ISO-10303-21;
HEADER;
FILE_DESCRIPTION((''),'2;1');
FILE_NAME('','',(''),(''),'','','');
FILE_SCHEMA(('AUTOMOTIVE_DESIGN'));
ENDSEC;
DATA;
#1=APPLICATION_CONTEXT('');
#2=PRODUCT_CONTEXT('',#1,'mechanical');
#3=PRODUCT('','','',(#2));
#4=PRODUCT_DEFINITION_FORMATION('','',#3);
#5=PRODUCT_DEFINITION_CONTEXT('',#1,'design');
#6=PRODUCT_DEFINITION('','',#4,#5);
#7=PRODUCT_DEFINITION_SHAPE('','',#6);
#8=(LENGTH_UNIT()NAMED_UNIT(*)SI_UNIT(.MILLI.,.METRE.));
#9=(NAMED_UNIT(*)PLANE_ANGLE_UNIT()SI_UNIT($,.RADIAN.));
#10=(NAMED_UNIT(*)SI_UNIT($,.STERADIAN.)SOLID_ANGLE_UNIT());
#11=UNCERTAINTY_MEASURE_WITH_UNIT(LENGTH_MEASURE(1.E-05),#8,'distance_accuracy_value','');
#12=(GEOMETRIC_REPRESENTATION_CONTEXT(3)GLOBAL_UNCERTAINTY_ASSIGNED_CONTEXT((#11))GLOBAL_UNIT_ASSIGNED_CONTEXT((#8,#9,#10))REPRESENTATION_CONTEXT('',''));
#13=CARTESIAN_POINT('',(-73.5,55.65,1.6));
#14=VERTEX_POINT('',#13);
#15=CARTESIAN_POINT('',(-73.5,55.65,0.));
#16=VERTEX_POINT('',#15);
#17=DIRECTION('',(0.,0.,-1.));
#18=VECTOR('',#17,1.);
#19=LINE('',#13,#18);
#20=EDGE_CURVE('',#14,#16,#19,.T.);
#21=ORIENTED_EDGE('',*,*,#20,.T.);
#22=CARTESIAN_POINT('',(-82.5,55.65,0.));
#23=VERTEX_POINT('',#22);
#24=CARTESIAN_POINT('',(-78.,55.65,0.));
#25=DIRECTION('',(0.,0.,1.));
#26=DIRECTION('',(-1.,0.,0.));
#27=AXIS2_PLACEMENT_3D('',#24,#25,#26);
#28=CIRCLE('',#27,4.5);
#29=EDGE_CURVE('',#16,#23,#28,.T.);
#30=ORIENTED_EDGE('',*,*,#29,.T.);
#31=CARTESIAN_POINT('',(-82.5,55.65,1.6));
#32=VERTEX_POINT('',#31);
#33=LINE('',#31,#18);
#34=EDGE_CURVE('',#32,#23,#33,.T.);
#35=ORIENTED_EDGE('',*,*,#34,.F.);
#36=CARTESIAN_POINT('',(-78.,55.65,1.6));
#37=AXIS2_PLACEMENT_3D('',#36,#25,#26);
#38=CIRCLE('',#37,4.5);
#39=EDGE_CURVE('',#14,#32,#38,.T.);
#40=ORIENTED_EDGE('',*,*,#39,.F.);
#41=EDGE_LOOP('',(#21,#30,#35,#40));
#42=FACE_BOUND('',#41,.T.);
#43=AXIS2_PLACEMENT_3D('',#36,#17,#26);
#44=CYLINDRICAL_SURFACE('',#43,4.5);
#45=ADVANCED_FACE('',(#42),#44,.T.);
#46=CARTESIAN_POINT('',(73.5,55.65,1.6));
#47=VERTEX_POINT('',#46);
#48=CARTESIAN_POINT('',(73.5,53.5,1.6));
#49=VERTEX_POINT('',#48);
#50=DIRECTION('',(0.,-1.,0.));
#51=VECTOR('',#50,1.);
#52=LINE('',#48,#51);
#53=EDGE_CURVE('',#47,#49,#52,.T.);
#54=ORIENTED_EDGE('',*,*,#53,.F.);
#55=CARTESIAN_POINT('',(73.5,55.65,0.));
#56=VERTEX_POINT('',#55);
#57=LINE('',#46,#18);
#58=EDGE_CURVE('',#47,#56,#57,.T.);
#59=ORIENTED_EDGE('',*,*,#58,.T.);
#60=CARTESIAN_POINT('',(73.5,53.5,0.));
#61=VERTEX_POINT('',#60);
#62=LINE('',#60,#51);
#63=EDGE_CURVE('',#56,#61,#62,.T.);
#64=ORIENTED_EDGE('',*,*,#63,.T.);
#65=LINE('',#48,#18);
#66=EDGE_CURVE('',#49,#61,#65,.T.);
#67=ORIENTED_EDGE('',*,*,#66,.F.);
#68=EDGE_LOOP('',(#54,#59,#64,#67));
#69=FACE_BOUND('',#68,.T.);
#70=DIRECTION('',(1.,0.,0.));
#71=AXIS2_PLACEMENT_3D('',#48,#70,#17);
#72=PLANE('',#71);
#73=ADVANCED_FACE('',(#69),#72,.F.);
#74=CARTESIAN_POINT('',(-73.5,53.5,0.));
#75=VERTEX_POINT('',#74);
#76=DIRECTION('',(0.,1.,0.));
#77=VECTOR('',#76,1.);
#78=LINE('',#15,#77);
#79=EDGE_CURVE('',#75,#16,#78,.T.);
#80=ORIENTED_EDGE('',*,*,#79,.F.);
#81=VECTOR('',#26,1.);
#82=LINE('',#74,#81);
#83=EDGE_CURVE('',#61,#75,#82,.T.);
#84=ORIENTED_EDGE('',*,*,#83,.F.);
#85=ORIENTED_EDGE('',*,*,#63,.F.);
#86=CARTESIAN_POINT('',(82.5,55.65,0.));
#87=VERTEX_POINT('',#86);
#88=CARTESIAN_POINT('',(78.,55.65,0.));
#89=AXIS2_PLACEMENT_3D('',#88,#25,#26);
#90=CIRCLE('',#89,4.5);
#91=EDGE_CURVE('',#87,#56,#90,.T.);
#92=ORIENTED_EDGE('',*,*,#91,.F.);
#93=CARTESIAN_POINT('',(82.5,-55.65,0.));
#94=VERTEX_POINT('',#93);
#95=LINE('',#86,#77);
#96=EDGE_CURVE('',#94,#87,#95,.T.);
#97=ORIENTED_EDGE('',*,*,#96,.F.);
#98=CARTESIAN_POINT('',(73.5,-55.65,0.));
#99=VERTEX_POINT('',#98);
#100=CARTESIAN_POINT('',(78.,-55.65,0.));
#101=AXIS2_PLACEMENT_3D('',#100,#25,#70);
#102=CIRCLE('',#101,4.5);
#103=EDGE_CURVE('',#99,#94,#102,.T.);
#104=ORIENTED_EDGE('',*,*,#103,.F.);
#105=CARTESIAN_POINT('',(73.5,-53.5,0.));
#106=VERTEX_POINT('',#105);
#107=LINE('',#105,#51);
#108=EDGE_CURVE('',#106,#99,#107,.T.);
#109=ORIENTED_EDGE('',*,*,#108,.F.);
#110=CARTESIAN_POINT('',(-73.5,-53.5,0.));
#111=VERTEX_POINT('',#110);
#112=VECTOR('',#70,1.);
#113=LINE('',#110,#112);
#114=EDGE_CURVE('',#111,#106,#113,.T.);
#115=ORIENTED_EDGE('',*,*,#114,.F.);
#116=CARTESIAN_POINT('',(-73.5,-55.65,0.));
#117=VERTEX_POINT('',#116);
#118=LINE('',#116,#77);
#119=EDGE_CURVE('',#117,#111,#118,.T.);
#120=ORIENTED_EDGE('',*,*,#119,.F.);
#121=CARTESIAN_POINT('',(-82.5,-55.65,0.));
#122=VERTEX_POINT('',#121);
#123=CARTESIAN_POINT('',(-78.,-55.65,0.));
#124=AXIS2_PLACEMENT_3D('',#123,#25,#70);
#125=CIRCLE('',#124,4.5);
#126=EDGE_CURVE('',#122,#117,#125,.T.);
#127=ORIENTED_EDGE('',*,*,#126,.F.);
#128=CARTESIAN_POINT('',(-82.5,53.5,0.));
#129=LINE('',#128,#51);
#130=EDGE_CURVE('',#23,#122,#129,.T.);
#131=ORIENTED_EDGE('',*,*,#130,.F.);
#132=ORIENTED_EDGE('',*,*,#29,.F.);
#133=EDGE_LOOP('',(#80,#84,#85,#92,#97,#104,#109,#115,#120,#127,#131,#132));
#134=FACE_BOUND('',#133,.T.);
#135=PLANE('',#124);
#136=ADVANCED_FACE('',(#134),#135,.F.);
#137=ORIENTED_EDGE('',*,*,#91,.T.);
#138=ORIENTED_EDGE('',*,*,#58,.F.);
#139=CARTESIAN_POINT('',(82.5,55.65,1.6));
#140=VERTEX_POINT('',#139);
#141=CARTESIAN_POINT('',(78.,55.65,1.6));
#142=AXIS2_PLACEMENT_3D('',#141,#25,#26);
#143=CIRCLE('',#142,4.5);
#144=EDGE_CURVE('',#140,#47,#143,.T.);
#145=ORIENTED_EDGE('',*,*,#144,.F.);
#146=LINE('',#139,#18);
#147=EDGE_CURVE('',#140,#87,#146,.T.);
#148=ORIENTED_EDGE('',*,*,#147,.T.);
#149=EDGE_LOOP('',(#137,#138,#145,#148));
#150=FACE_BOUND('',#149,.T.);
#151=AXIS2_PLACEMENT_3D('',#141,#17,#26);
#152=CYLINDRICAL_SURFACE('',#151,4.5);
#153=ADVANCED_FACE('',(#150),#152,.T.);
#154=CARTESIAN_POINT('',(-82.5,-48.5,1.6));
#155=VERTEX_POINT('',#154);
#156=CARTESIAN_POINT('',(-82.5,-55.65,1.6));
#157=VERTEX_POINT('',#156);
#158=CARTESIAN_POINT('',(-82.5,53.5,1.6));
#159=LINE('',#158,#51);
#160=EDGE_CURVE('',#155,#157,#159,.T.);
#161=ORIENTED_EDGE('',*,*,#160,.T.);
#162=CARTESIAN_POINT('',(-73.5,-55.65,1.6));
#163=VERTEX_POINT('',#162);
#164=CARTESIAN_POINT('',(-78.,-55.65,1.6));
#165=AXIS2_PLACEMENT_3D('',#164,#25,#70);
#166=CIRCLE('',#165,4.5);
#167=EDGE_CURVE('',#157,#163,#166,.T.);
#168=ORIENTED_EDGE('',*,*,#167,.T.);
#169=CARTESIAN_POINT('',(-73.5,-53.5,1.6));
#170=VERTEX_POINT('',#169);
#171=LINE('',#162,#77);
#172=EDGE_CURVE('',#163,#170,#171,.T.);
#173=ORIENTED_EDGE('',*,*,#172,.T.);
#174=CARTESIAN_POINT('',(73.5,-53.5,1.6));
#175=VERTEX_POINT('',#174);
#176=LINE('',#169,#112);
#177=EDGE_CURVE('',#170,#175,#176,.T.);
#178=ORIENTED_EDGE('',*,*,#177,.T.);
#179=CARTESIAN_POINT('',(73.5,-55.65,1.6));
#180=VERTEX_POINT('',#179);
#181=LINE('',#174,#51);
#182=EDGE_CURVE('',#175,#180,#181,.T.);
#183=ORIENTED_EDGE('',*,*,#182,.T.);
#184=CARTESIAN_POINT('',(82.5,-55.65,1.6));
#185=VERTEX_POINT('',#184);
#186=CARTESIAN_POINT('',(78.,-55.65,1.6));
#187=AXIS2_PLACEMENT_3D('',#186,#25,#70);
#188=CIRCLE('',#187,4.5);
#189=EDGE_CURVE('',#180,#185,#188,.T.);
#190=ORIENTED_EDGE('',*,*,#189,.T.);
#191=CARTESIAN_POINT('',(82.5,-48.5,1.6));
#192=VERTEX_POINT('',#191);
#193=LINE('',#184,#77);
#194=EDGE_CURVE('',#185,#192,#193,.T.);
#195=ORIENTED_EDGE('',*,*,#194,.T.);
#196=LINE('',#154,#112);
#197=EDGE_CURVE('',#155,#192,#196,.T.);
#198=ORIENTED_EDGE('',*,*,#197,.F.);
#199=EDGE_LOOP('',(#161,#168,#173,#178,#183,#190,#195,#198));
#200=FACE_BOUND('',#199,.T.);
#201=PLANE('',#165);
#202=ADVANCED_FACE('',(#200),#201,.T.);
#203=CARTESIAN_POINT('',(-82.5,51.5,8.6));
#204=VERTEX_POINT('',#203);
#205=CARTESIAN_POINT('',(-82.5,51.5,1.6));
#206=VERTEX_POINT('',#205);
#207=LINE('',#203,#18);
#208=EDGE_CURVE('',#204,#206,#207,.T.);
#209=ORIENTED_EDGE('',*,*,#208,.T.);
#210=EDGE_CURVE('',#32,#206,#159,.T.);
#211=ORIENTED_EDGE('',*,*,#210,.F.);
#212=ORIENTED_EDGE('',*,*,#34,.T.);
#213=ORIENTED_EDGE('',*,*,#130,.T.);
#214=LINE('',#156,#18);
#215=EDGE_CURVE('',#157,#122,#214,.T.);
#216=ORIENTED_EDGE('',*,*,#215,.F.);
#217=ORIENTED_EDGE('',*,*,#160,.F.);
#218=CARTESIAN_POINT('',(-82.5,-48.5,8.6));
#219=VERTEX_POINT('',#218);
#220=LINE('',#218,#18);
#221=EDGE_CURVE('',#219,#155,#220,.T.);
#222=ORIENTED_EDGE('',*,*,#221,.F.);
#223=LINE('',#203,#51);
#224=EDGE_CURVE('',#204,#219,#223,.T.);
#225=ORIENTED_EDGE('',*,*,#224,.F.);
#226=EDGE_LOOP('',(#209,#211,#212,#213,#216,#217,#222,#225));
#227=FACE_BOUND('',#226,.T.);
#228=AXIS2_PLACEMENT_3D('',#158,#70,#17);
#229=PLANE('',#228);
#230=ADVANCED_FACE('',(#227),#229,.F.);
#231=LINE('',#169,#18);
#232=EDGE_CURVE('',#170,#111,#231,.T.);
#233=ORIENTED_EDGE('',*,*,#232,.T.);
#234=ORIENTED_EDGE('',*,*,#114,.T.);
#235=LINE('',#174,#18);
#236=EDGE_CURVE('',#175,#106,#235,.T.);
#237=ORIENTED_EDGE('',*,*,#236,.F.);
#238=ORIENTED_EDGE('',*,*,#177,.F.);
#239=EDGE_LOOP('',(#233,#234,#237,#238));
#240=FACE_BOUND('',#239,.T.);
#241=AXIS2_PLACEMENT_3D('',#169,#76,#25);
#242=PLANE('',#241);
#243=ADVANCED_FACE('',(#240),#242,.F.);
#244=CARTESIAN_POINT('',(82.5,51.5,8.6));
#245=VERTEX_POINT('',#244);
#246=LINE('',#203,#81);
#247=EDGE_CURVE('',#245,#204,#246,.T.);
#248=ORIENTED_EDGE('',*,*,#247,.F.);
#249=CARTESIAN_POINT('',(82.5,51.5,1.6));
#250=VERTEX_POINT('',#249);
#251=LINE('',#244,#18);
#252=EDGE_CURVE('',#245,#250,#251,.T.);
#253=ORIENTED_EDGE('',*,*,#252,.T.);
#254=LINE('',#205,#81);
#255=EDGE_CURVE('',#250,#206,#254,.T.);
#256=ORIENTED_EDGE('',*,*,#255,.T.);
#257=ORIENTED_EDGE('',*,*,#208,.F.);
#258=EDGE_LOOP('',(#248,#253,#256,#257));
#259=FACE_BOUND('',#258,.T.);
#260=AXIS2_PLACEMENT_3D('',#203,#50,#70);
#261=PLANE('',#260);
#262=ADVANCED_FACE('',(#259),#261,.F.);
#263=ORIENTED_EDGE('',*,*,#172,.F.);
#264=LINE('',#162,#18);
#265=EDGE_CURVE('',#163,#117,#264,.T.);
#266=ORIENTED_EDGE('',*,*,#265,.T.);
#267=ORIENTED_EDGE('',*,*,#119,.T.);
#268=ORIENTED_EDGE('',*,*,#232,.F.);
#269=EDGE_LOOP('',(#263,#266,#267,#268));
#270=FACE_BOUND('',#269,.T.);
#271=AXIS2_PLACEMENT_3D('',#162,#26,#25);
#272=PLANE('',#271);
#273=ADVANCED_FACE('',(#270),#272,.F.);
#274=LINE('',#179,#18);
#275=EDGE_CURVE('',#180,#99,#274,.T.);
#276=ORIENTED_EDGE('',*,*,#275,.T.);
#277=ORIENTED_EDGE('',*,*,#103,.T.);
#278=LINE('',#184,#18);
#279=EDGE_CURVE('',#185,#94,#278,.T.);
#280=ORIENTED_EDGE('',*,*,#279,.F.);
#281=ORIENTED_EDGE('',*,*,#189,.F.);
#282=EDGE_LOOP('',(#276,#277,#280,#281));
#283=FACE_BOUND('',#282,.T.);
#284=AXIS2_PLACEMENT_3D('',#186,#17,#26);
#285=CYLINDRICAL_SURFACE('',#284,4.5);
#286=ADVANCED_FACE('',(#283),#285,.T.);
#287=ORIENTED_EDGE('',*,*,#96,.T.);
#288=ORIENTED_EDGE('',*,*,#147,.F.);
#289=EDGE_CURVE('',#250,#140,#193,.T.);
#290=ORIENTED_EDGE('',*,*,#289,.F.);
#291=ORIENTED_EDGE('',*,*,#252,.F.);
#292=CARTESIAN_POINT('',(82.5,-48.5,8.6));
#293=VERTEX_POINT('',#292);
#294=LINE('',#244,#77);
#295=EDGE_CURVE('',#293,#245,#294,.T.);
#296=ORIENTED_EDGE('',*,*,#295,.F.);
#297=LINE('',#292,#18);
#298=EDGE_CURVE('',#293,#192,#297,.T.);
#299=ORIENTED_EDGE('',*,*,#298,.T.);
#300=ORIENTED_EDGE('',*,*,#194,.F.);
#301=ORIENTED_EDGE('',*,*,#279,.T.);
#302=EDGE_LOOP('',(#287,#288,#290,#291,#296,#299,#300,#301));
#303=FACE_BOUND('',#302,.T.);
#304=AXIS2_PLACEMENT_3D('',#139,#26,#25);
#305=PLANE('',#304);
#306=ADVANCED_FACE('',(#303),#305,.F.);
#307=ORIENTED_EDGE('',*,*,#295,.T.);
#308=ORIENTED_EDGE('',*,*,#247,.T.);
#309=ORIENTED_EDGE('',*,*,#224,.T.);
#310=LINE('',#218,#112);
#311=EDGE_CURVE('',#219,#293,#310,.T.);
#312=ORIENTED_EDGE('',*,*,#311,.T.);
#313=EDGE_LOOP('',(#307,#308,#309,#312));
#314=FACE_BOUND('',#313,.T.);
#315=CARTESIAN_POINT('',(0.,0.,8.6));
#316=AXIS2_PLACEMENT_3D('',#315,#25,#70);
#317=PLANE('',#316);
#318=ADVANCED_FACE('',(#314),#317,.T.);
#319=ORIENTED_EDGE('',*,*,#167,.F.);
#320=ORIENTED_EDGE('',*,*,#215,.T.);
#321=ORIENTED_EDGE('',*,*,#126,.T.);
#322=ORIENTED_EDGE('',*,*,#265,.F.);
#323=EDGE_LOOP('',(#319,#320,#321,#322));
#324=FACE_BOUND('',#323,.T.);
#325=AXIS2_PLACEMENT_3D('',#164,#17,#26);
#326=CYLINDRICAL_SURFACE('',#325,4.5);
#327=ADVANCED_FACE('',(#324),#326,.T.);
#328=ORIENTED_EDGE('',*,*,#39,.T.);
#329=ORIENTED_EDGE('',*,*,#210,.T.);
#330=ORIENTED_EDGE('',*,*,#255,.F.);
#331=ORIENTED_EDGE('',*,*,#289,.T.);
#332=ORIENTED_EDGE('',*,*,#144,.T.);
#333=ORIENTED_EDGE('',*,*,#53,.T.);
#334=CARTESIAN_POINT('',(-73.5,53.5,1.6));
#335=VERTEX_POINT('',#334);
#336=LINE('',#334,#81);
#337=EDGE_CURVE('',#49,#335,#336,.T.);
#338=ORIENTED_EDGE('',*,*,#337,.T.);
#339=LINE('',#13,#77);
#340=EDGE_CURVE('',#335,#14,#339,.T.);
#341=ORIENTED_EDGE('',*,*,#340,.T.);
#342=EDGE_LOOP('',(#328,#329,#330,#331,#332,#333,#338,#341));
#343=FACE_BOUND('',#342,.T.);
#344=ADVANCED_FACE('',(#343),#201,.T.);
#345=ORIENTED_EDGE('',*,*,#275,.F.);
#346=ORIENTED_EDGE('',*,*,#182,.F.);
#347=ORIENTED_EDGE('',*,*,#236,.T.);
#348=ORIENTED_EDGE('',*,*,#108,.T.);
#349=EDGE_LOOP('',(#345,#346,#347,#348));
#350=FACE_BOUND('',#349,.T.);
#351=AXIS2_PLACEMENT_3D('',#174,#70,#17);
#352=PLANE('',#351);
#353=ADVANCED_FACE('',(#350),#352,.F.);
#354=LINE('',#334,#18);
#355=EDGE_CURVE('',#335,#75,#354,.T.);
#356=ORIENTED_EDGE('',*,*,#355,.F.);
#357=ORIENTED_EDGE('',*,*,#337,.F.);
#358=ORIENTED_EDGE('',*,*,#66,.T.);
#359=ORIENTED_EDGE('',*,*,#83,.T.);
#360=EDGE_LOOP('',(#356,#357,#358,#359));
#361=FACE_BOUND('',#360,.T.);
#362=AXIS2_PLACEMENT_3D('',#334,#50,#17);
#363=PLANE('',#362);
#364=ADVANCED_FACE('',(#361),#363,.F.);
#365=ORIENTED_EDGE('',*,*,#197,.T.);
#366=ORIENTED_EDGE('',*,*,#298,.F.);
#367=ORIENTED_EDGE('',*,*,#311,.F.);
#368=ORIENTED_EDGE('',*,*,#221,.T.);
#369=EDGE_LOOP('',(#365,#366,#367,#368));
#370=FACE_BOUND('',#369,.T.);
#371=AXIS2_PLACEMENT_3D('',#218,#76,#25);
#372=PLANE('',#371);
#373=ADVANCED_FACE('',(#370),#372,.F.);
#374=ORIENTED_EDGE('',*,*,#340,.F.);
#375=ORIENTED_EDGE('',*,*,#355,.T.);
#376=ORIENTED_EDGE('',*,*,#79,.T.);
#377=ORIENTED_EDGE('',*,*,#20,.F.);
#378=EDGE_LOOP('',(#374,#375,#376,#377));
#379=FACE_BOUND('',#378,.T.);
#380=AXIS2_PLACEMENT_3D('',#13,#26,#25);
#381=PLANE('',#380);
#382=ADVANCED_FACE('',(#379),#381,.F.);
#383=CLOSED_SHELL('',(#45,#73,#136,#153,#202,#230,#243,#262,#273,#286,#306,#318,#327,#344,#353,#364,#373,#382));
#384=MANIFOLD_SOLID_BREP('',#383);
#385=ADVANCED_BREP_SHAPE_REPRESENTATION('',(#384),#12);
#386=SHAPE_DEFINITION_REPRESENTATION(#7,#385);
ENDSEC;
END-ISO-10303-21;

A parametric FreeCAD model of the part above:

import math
import FreeCAD as App
import Part
import Sketcher

V = App.Vector

doc = App.newDocument("Part")
body = doc.addObject("PartDesign::Body", "Body")

sketch1 = body.newObject("Sketcher::SketchObject", "Sketch")
sketch1.AttachmentSupport = (doc.getObject("XY_Plane"), [""])
sketch1.MapMode = "FlatFace"
sketch1.addGeometry([
    Part.ArcOfCircle(Part.Circle(V(-78, 55.65, 0), V(0, 0, 1), 4.5), math.radians(0), math.radians(180)),
    Part.LineSegment(V(-82.5, 55.65, 0), V(-82.5, -55.65, 0)),
    Part.ArcOfCircle(Part.Circle(V(-78, -55.65, 0), V(0, 0, 1), 4.5), math.radians(180), math.radians(360)),
    Part.LineSegment(V(-73.5, -55.65, 0), V(-73.5, -53.5, 0)),
    Part.LineSegment(V(-73.5, -53.5, 0), V(73.5, -53.5, 0)),
    Part.LineSegment(V(73.5, -53.5, 0), V(73.5, -55.65, 0)),
    Part.ArcOfCircle(Part.Circle(V(78, -55.65, 0), V(0, 0, 1), 4.5), math.radians(180), math.radians(360)),
    Part.LineSegment(V(82.5, -55.65, 0), V(82.5, 55.65, 0)),
    Part.ArcOfCircle(Part.Circle(V(78, 55.65, 0), V(0, 0, 1), 4.5), math.radians(0), math.radians(180)),
    Part.LineSegment(V(73.5, 55.65, 0), V(73.5, 53.5, 0)),
    Part.LineSegment(V(73.5, 53.5, 0), V(-73.5, 53.5, 0)),
    Part.LineSegment(V(-73.5, 53.5, 0), V(-73.5, 55.65, 0)),
], False)
sketch1.addConstraint([
    Sketcher.Constraint("Tangent", 0, 2, 1, 1),
    Sketcher.Constraint("Tangent", 1, 2, 2, 1),
    Sketcher.Constraint("Tangent", 2, 2, 3, 1),
    Sketcher.Constraint("Coincident", 3, 2, 4, 1),
    Sketcher.Constraint("Coincident", 4, 2, 5, 1),
    Sketcher.Constraint("Tangent", 5, 2, 6, 1),
    Sketcher.Constraint("Tangent", 6, 2, 7, 1),
    Sketcher.Constraint("Tangent", 7, 2, 8, 1),
    Sketcher.Constraint("Tangent", 8, 2, 9, 1),
    Sketcher.Constraint("Coincident", 9, 2, 10, 1),
    Sketcher.Constraint("Coincident", 10, 2, 11, 1),
    Sketcher.Constraint("Tangent", 11, 2, 0, 1),
    Sketcher.Constraint("Vertical", 1),
    Sketcher.Constraint("Vertical", 3),
    Sketcher.Constraint("Horizontal", 4),
    Sketcher.Constraint("Vertical", 5),
    Sketcher.Constraint("Vertical", 7),
    Sketcher.Constraint("Vertical", 9),
    Sketcher.Constraint("Horizontal", 10),
    Sketcher.Constraint("Vertical", 11),
    Sketcher.Constraint("Equal", 0, 2),
    Sketcher.Constraint("Equal", 2, 6),
    Sketcher.Constraint("Equal", 6, 8),
    Sketcher.Constraint("Symmetric", 0, 3, 6, 3, -1, 1),
    Sketcher.Constraint("Horizontal", 2, 3, 6, 3),
    Sketcher.Constraint("Horizontal", 0, 3, 8, 3),
    Sketcher.Constraint("Equal", 5, 9),
    Sketcher.Constraint("Radius", 0, 4.5),
    Sketcher.Constraint("DistanceX", 4, 1, 4, 2, 147.0),
    Sketcher.Constraint("DistanceY", 1, 2, 1, 1, 111.3),
    Sketcher.Constraint("DistanceY", 4, 2, 9, 2, 107.0),
])
pad1 = body.newObject("PartDesign::Pad", "Pad")
pad1.Profile = sketch1
pad1.Length = 1.6

sketch2 = body.newObject("Sketcher::SketchObject", "Sketch001")
sketch2.AttachmentSupport = (doc.getObject("XY_Plane"), [""])
sketch2.MapMode = "FlatFace"
sketch2.AttachmentOffset = App.Placement(V(0, 0, 1.6), App.Rotation())
sketch2.addGeometry([
    Part.LineSegment(V(-82.5, 51.5, 0), V(-82.5, -48.5, 0)),
    Part.LineSegment(V(-82.5, -48.5, 0), V(82.5, -48.5, 0)),
    Part.LineSegment(V(82.5, -48.5, 0), V(82.5, 51.5, 0)),
    Part.LineSegment(V(82.5, 51.5, 0), V(-82.5, 51.5, 0)),
], False)
sketch2.addConstraint([
    Sketcher.Constraint("Coincident", 0, 2, 1, 1),
    Sketcher.Constraint("Coincident", 1, 2, 2, 1),
    Sketcher.Constraint("Coincident", 2, 2, 3, 1),
    Sketcher.Constraint("Coincident", 3, 2, 0, 1),
    Sketcher.Constraint("Vertical", 0),
    Sketcher.Constraint("Horizontal", 1),
    Sketcher.Constraint("Vertical", 2),
    Sketcher.Constraint("Horizontal", 3),
    Sketcher.Constraint("DistanceX", 1, 1, 1, 2, 165.0),
    Sketcher.Constraint("DistanceY", 0, 2, 0, 1, 100.0),
    Sketcher.Constraint("DistanceX", 0, 2, -1, 1, 82.5),
    Sketcher.Constraint("DistanceY", 0, 2, -1, 1, 48.5),
])
pad2 = body.newObject("PartDesign::Pad", "Pad001")
pad2.Profile = sketch2
pad2.Length = 7

doc.recompute()
